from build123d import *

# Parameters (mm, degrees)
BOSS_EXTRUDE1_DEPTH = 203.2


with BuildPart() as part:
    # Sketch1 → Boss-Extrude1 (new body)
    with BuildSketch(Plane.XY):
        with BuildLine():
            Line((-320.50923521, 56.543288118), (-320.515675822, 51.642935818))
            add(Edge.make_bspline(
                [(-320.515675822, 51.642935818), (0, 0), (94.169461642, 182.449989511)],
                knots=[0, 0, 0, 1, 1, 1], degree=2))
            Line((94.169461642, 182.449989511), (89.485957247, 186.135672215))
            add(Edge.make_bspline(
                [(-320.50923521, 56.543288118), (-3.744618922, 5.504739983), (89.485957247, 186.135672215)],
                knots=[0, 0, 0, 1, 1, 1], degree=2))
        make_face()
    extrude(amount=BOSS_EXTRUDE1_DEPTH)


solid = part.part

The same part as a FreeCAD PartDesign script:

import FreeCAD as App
import Part
import Sketcher
from FreeCAD import Vector
Q = App.Units.Quantity

doc = App.newDocument("Part")
body = doc.addObject("PartDesign::Body", "Body")

# Sketch on XY plane
sketch1 = body.newObject("Sketcher::SketchObject", "Sketch")
sketch1.AttachmentSupport = (doc.getObject("XY_Plane"), [""])
sketch1.MapMode = "FlatFace"
sketch1.addGeometry(Part.LineSegment(Vector(-320.509235, 56.543288, 0), Vector(-320.515676, 51.642936, 0)), False)
sketch1.addGeometry(Part.BSplineCurve([Vector(-320.515676, 51.642936, 0), Vector(0, 0, 0), Vector(94.169462, 182.44999, 0)], [3, 3], [0, 1], False, 2, [1, 1, 1], False), False)
sketch1.addGeometry(Part.LineSegment(Vector(94.169462, 182.44999, 0), Vector(89.485957, 186.135672, 0)), False)
sketch1.addGeometry(Part.BSplineCurve([Vector(-320.509235, 56.543288, 0), Vector(-3.744619, 5.50474, 0), Vector(89.485957, 186.135672, 0)], [3, 3], [0, 1], False, 2, [1, 1, 1], False), False)
sketch1.addConstraint(Sketcher.Constraint("Block", 1))
sketch1.addConstraint(Sketcher.Constraint("Block", 3))
sketch1.addConstraint(Sketcher.Constraint("Coincident", 0, 2, 1, 1))
sketch1.addConstraint(Sketcher.Constraint("Coincident", 1, 2, 2, 1))
sketch1.addConstraint(Sketcher.Constraint("Coincident", 2, 2, 3, 2))
sketch1.addConstraint(Sketcher.Constraint("Coincident", 3, 1, 0, 1))
pad1 = body.newObject("PartDesign::Pad", "Pad")
pad1.Profile = sketch1
pad1.Length = Q("8 in")

doc.recompute()
